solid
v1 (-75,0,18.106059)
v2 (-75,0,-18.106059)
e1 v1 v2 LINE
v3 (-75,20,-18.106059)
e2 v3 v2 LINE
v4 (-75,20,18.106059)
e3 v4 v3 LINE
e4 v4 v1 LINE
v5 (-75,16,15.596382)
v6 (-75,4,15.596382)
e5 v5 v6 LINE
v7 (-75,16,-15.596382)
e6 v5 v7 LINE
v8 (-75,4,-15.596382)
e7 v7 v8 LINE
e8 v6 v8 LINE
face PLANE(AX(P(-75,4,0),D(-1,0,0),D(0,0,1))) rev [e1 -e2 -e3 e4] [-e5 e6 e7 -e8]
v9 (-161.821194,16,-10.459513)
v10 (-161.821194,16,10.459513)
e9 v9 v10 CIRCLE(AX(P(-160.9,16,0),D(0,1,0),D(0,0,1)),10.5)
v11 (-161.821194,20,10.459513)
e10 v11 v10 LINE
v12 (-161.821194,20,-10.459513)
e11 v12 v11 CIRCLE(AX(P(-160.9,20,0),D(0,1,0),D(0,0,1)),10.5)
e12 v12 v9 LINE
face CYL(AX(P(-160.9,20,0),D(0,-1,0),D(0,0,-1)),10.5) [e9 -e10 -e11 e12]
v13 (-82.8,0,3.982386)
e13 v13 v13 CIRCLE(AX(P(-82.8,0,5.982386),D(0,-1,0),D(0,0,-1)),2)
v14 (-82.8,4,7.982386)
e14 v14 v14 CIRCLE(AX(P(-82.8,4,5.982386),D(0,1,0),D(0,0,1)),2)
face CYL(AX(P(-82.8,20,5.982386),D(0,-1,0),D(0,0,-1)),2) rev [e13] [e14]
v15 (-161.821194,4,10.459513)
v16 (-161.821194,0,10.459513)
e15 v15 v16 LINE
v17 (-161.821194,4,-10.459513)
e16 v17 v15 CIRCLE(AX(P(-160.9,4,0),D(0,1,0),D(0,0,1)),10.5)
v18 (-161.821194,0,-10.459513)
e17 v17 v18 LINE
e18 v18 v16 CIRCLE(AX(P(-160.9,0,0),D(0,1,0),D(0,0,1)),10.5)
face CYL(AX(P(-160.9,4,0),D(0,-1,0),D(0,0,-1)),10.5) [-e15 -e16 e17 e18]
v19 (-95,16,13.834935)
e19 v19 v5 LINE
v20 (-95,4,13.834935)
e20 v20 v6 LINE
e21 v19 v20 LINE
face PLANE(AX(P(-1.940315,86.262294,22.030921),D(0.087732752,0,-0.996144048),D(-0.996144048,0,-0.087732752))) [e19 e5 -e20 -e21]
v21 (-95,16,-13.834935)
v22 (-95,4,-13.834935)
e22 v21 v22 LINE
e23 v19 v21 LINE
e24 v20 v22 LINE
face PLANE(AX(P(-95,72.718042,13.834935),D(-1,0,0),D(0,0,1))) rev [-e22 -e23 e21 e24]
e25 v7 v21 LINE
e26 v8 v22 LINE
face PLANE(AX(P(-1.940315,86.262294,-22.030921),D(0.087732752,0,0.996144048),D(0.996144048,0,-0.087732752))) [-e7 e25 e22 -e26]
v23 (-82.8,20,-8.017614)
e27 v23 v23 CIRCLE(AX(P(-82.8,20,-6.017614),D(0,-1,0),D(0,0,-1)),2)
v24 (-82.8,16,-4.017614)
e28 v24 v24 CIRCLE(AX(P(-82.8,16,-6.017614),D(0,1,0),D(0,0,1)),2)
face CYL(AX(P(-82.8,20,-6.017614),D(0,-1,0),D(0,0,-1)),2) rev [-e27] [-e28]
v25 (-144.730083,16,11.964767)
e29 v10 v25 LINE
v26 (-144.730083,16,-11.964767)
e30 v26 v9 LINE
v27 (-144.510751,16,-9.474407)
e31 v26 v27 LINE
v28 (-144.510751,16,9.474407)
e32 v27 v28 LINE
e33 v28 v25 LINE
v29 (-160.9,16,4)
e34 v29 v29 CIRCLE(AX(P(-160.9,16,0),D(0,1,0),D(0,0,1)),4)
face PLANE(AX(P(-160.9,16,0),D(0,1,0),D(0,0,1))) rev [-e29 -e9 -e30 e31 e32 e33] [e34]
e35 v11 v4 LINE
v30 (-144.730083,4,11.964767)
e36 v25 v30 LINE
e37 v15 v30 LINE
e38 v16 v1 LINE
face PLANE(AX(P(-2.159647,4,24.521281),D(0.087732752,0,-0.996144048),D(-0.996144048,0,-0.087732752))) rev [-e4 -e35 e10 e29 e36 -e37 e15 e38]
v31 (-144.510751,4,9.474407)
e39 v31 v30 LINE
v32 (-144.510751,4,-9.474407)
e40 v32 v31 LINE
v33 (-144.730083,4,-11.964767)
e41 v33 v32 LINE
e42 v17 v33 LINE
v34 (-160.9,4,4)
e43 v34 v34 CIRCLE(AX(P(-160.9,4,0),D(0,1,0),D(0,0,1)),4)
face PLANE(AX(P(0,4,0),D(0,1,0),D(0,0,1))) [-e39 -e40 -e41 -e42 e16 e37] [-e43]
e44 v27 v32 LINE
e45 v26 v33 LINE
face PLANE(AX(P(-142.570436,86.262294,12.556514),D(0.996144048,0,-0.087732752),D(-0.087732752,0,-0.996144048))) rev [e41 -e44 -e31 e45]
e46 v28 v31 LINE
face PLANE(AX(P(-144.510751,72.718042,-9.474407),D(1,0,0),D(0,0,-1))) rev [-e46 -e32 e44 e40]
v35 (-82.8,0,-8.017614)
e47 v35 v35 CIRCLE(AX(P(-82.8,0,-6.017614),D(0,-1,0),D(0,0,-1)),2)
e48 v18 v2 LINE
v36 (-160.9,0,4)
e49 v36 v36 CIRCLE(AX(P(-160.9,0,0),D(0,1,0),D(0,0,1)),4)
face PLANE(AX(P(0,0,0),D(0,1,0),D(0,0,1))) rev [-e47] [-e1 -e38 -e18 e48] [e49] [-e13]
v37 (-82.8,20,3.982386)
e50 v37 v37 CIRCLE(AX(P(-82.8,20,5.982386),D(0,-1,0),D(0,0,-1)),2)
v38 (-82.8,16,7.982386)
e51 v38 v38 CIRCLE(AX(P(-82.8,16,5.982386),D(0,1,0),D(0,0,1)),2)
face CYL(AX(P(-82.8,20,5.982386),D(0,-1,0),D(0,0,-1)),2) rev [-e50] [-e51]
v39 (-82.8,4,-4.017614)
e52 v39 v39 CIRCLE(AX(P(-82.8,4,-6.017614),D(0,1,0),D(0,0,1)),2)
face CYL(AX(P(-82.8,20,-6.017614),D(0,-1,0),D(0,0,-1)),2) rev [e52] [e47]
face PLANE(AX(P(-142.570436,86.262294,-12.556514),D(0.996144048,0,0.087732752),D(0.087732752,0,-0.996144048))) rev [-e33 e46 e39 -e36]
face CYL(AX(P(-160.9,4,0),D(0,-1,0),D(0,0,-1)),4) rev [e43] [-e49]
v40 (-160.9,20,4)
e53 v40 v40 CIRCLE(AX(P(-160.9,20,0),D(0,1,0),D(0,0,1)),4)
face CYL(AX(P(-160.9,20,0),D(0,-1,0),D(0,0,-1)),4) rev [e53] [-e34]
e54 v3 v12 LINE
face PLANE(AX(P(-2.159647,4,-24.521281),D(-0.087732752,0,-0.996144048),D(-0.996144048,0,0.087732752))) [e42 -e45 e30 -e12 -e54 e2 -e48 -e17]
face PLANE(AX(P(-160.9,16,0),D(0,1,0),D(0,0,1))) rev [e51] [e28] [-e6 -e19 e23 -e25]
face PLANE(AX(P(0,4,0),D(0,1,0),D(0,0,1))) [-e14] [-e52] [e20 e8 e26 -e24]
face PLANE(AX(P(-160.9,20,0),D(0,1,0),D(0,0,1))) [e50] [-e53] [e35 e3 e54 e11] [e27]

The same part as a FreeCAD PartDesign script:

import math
import FreeCAD as App
import Part
import Sketcher
from FreeCAD import Vector

doc = App.newDocument("Part")
params = doc.addObject("Spreadsheet::Sheet", "Params")
for row, (alias, value) in enumerate([
    ("sketch1_diameter", "8 mm"),
    ("sketch1_radius", "10.5 mm"),
    ("pad1_length", "4 mm"),
    ("sketch2_diameter", "8 mm"),
    ("sketch2_radius", "10.5 mm"),
    ("pad2_length", "4 mm"),
    ("sketch3_length", "70 mm"),
    ("sketch3_length2", "2.5 mm"),
    ("pad3_length", "12 mm"),
    ("sketch4_diameter", "4 mm"),
    ("pad4_length", "12 mm"),
], start=1):
    params.set(f"A{row}", alias)
    params.set(f"B{row}", "=" + value)
    params.setAlias(f"B{row}", alias)

body = doc.addObject("PartDesign::Body", "Body")

# Sketch on XZ plane
sketch1 = doc.addObject("Sketcher::SketchObject", "Sketch")
body.addObject(sketch1)
sketch1.AttachmentSupport = (doc.XZ_Plane, [""])
sketch1.MapMode = "FlatFace"
sketch1.addGeometry([
    Part.LineSegment(Vector(-75, -18.1, 0), Vector(-161.8, -10.5, 0)),  # 0
    Part.ArcOfCircle(Part.Circle(Vector(-160.9, 0, 0), Vector(0, 0, 1), 10.5), math.radians(95), math.radians(265)),  # 1
    Part.LineSegment(Vector(-161.8, 10.5, 0), Vector(-75, 18.1, 0)),  # 2
    Part.LineSegment(Vector(-75, 18.1, 0), Vector(-75, -18.1, 0)),  # 3
    Part.Circle(Vector(-160.9, 0, 0), Vector(0, 0, 1), 4),  # 4
], False)
sketch1.addConstraint([
    Sketcher.Constraint("Tangent", 0, 2, 1, 2),
    Sketcher.Constraint("Tangent", 1, 1, 2, 1),
    Sketcher.Constraint("Coincident", 2, 2, 3, 1),
    Sketcher.Constraint("Coincident", 3, 2, 0, 1),
    Sketcher.Constraint("Vertical", 3),
    Sketcher.Constraint("Coincident", 4, 3, 1, 3),
    Sketcher.Constraint("Symmetric", 0, 2, 1, 1, -1),
    Sketcher.Constraint("Diameter", 4, 8.0),
    Sketcher.Constraint("Radius", 1, 10.5),
    Sketcher.Constraint("DistanceX", 2, 2, -1, 1, 75.0),
    Sketcher.Constraint("DistanceX", 1, 3, -1, 1, 160.9),
    Sketcher.Constraint("DistanceY", 3, 2, 3, 1, 36.212119),
])
sketch1.setExpression("Constraints[7]", "Params.sketch1_diameter")
sketch1.setExpression("Constraints[8]", "Params.sketch1_radius")
pad1 = doc.addObject("PartDesign::Pad", "Pad")
body.addObject(pad1)
pad1.Profile = sketch1
pad1.setExpression("Length", "Params.pad1_length")
pad1.Reversed = True
body2 = doc.addObject("PartDesign::Body", "Body001")

# Sketch on XZ plane
sketch2 = doc.addObject("Sketcher::SketchObject", "Sketch001")
body2.addObject(sketch2)
sketch2.AttachmentSupport = (doc.getObject("XZ_Plane001"), [""])
sketch2.MapMode = "FlatFace"
sketch2.AttachmentOffset = App.Placement(Vector(0, 0, -16), App.Rotation())
sketch2.addGeometry([
    Part.LineSegment(Vector(-75, -18.1, 0), Vector(-161.8, -10.5, 0)),  # 0
    Part.ArcOfCircle(Part.Circle(Vector(-160.9, 0, 0), Vector(0, 0, 1), 10.5), math.radians(95), math.radians(265)),  # 1
    Part.LineSegment(Vector(-161.8, 10.5, 0), Vector(-75, 18.1, 0)),  # 2
    Part.LineSegment(Vector(-75, 18.1, 0), Vector(-75, -18.1, 0)),  # 3
    Part.Circle(Vector(-160.9, 0, 0), Vector(0, 0, 1), 4),  # 4
], False)
sketch2.addConstraint([
    Sketcher.Constraint("Tangent", 0, 2, 1, 2),
    Sketcher.Constraint("Tangent", 1, 1, 2, 1),
    Sketcher.Constraint("Coincident", 2, 2, 3, 1),
    Sketcher.Constraint("Coincident", 3, 2, 0, 1),
    Sketcher.Constraint("Vertical", 3),
    Sketcher.Constraint("Coincident", 4, 3, 1, 3),
    Sketcher.Constraint("Symmetric", 0, 2, 1, 1, -1),
    Sketcher.Constraint("Diameter", 4, 8.0),
    Sketcher.Constraint("Radius", 1, 10.5),
    Sketcher.Constraint("DistanceX", 2, 2, -1, 1, 75.0),
    Sketcher.Constraint("DistanceX", 1, 3, -1, 1, 160.9),
    Sketcher.Constraint("DistanceY", 3, 2, 3, 1, 36.212119),
])
sketch2.setExpression("Constraints[7]", "Params.sketch2_diameter")
sketch2.setExpression("Constraints[8]", "Params.sketch2_radius")
pad2 = doc.addObject("PartDesign::Pad", "Pad001")
body2.addObject(pad2)
pad2.Profile = sketch2
pad2.setExpression("Length", "Params.pad2_length")
pad2.Reversed = True
body.AllowCompound = True
doc.recompute()

boolean = doc.addObject("PartDesign::Boolean", "Boolean")
body.addObject(boolean)
boolean.Type = "Fuse"
boolean.addObjects([body2])

# Sketch on XZ plane
sketch3 = doc.addObject("Sketcher::SketchObject", "Sketch002")
body.addObject(sketch3)
sketch3.AttachmentSupport = (doc.XZ_Plane, [""])
sketch3.MapMode = "FlatFace"
sketch3.AttachmentOffset = App.Placement(Vector(0, 0, -4), App.Rotation())
sketch3.addGeometry([
    Part.LineSegment(Vector(-75, 18.1, 0), Vector(-75, 15.6, 0)),  # 0
    Part.LineSegment(Vector(-75, 15.6, 0), Vector(-144.5, 9.5, 0)),  # 1
    Part.LineSegment(Vector(-144.5, 9.5, 0), Vector(-144.7, 12, 0)),  # 2
    Part.LineSegment(Vector(-144.7, 12, 0), Vector(-75, 18.1, 0)),  # 3
    Part.LineSegment(Vector(-75, -15.6, 0), Vector(-75, -18.1, 0)),  # 4
    Part.LineSegment(Vector(-75, -18.1, 0), Vector(-144.7, -12, 0)),  # 5
    Part.LineSegment(Vector(-144.7, -12, 0), Vector(-144.5, -9.5, 0)),  # 6
    Part.LineSegment(Vector(-144.5, -9.5, 0), Vector(-75, -15.6, 0)),  # 7
], False)
sketch3.addConstraint([
    Sketcher.Constraint("Coincident", 0, 2, 1, 1),
    Sketcher.Constraint("Coincident", 1, 2, 2, 1),
    Sketcher.Constraint("Coincident", 2, 2, 3, 1),
    Sketcher.Constraint("Coincident", 3, 2, 0, 1),
    Sketcher.Constraint("Coincident", 4, 2, 5, 1),
    Sketcher.Constraint("Coincident", 5, 2, 6, 1),
    Sketcher.Constraint("Coincident", 6, 2, 7, 1),
    Sketcher.Constraint("Coincident", 7, 2, 4, 1),
    Sketcher.Constraint("Vertical", 0),
    Sketcher.Constraint("Vertical", 4),
    Sketcher.Constraint("Symmetric", 3, 2, 4, 2, -1),
    Sketcher.Constraint("Symmetric", 2, 2, 5, 2, -1),
    Sketcher.Constraint("Symmetric", 1, 2, 6, 2, -1),
    Sketcher.Constraint("Perpendicular", 1, 2),
    Sketcher.Constraint("Perpendicular", 2, 3),
    Sketcher.Constraint("Perpendicular", 6, 7),
    Sketcher.Constraint("Distance", 3, 70.0),
    Sketcher.Constraint("DistanceX", 0, 2, -1, 1, 75.0),
    Sketcher.Constraint("Distance", 2, 2.5),
    Sketcher.Constraint("Distance", 1, 69.779819),
    Sketcher.Constraint("DistanceY", -1, 1, 3, 2, 18.106059),
])
sketch3.setExpression("Constraints[16]", "Params.sketch3_length")
sketch3.setExpression("Constraints[18]", "Params.sketch3_length2")
pad3 = doc.addObject("PartDesign::Pad", "Pad002")
body.addObject(pad3)
pad3.Profile = sketch3
pad3.setExpression("Length", "Params.pad3_length")
pad3.Reversed = True

# Sketch on XZ plane
sketch4 = doc.addObject("Sketcher::SketchObject", "Sketch003")
body.addObject(sketch4)
sketch4.AttachmentSupport = (doc.XZ_Plane, [""])
sketch4.MapMode = "FlatFace"
sketch4.addGeometry([
    Part.Circle(Vector(-82.8, 6, 0), Vector(0, 0, 1), 2),
    Part.Circle(Vector(-82.8, -6, 0), Vector(0, 0, 1), 2),
], False)
sketch4.addConstraint([
    Sketcher.Constraint("Equal", 0, 1),
    Sketcher.Constraint("Vertical", 0, 3, 1, 3),
    Sketcher.Constraint("Diameter", 0, 4.0),
    Sketcher.Constraint("DistanceY", 1, 3, 0, 3, 12.0),
    Sketcher.Constraint("DistanceX", 0, 3, -1, 1, 82.8),
    Sketcher.Constraint("DistanceY", -1, 1, 0, 3, 5.982386),
])
sketch4.setExpression("Constraints[2]", "Params.sketch4_diameter")
pocket1 = doc.addObject("PartDesign::Pocket", "Pocket")
body.addObject(pocket1)
pocket1.Profile = sketch4
pocket1.Type = "ThroughAll"

# Sketch on XZ plane
sketch5 = doc.addObject("Sketcher::SketchObject", "Sketch004")
body.addObject(sketch5)
sketch5.AttachmentSupport = (doc.XZ_Plane, [""])
sketch5.MapMode = "FlatFace"
sketch5.AttachmentOffset = App.Placement(Vector(0, 0, -4), App.Rotation())
sketch5.addGeometry([
    Part.LineSegment(Vector(-145, -9, 0), Vector(-145, 9, 0)),
    Part.LineSegment(Vector(-145, 9, 0), Vector(-95, 14, 0)),
    Part.LineSegment(Vector(-95, 14, 0), Vector(-95, -14, 0)),
    Part.LineSegment(Vector(-95, -14, 0), Vector(-145, -9, 0)),
], False)
sketch5.addConstraint([
    Sketcher.Constraint("Coincident", 0, 2, 1, 1),
    Sketcher.Constraint("Coincident", 1, 2, 2, 1),
    Sketcher.Constraint("Coincident", 2, 2, 3, 1),
    Sketcher.Constraint("Coincident", 3, 2, 0, 1),
    Sketcher.Constraint("Vertical", 0),
    Sketcher.Constraint("Vertical", 2),
    Sketcher.Constraint("Equal", 1, 3),
    Sketcher.Constraint("DistanceX", 1, 2, -1, 1, 95.0),
    Sketcher.Constraint("Distance", 1, 49.702402),
    Sketcher.Constraint("DistanceY", 2, 2, 2, 1, 27.66987),
    Sketcher.Constraint("DistanceY", 0, 1, 0, 2, 18.948813),
    Sketcher.Constraint("DistanceY", -1, 1, 0, 2, 9.474407),
])
pad4 = doc.addObject("PartDesign::Pad", "Pad003")
body.addObject(pad4)
pad4.Profile = sketch5
pad4.setExpression("Length", "Params.pad4_length")
pad4.Reversed = True

doc.recompute()
